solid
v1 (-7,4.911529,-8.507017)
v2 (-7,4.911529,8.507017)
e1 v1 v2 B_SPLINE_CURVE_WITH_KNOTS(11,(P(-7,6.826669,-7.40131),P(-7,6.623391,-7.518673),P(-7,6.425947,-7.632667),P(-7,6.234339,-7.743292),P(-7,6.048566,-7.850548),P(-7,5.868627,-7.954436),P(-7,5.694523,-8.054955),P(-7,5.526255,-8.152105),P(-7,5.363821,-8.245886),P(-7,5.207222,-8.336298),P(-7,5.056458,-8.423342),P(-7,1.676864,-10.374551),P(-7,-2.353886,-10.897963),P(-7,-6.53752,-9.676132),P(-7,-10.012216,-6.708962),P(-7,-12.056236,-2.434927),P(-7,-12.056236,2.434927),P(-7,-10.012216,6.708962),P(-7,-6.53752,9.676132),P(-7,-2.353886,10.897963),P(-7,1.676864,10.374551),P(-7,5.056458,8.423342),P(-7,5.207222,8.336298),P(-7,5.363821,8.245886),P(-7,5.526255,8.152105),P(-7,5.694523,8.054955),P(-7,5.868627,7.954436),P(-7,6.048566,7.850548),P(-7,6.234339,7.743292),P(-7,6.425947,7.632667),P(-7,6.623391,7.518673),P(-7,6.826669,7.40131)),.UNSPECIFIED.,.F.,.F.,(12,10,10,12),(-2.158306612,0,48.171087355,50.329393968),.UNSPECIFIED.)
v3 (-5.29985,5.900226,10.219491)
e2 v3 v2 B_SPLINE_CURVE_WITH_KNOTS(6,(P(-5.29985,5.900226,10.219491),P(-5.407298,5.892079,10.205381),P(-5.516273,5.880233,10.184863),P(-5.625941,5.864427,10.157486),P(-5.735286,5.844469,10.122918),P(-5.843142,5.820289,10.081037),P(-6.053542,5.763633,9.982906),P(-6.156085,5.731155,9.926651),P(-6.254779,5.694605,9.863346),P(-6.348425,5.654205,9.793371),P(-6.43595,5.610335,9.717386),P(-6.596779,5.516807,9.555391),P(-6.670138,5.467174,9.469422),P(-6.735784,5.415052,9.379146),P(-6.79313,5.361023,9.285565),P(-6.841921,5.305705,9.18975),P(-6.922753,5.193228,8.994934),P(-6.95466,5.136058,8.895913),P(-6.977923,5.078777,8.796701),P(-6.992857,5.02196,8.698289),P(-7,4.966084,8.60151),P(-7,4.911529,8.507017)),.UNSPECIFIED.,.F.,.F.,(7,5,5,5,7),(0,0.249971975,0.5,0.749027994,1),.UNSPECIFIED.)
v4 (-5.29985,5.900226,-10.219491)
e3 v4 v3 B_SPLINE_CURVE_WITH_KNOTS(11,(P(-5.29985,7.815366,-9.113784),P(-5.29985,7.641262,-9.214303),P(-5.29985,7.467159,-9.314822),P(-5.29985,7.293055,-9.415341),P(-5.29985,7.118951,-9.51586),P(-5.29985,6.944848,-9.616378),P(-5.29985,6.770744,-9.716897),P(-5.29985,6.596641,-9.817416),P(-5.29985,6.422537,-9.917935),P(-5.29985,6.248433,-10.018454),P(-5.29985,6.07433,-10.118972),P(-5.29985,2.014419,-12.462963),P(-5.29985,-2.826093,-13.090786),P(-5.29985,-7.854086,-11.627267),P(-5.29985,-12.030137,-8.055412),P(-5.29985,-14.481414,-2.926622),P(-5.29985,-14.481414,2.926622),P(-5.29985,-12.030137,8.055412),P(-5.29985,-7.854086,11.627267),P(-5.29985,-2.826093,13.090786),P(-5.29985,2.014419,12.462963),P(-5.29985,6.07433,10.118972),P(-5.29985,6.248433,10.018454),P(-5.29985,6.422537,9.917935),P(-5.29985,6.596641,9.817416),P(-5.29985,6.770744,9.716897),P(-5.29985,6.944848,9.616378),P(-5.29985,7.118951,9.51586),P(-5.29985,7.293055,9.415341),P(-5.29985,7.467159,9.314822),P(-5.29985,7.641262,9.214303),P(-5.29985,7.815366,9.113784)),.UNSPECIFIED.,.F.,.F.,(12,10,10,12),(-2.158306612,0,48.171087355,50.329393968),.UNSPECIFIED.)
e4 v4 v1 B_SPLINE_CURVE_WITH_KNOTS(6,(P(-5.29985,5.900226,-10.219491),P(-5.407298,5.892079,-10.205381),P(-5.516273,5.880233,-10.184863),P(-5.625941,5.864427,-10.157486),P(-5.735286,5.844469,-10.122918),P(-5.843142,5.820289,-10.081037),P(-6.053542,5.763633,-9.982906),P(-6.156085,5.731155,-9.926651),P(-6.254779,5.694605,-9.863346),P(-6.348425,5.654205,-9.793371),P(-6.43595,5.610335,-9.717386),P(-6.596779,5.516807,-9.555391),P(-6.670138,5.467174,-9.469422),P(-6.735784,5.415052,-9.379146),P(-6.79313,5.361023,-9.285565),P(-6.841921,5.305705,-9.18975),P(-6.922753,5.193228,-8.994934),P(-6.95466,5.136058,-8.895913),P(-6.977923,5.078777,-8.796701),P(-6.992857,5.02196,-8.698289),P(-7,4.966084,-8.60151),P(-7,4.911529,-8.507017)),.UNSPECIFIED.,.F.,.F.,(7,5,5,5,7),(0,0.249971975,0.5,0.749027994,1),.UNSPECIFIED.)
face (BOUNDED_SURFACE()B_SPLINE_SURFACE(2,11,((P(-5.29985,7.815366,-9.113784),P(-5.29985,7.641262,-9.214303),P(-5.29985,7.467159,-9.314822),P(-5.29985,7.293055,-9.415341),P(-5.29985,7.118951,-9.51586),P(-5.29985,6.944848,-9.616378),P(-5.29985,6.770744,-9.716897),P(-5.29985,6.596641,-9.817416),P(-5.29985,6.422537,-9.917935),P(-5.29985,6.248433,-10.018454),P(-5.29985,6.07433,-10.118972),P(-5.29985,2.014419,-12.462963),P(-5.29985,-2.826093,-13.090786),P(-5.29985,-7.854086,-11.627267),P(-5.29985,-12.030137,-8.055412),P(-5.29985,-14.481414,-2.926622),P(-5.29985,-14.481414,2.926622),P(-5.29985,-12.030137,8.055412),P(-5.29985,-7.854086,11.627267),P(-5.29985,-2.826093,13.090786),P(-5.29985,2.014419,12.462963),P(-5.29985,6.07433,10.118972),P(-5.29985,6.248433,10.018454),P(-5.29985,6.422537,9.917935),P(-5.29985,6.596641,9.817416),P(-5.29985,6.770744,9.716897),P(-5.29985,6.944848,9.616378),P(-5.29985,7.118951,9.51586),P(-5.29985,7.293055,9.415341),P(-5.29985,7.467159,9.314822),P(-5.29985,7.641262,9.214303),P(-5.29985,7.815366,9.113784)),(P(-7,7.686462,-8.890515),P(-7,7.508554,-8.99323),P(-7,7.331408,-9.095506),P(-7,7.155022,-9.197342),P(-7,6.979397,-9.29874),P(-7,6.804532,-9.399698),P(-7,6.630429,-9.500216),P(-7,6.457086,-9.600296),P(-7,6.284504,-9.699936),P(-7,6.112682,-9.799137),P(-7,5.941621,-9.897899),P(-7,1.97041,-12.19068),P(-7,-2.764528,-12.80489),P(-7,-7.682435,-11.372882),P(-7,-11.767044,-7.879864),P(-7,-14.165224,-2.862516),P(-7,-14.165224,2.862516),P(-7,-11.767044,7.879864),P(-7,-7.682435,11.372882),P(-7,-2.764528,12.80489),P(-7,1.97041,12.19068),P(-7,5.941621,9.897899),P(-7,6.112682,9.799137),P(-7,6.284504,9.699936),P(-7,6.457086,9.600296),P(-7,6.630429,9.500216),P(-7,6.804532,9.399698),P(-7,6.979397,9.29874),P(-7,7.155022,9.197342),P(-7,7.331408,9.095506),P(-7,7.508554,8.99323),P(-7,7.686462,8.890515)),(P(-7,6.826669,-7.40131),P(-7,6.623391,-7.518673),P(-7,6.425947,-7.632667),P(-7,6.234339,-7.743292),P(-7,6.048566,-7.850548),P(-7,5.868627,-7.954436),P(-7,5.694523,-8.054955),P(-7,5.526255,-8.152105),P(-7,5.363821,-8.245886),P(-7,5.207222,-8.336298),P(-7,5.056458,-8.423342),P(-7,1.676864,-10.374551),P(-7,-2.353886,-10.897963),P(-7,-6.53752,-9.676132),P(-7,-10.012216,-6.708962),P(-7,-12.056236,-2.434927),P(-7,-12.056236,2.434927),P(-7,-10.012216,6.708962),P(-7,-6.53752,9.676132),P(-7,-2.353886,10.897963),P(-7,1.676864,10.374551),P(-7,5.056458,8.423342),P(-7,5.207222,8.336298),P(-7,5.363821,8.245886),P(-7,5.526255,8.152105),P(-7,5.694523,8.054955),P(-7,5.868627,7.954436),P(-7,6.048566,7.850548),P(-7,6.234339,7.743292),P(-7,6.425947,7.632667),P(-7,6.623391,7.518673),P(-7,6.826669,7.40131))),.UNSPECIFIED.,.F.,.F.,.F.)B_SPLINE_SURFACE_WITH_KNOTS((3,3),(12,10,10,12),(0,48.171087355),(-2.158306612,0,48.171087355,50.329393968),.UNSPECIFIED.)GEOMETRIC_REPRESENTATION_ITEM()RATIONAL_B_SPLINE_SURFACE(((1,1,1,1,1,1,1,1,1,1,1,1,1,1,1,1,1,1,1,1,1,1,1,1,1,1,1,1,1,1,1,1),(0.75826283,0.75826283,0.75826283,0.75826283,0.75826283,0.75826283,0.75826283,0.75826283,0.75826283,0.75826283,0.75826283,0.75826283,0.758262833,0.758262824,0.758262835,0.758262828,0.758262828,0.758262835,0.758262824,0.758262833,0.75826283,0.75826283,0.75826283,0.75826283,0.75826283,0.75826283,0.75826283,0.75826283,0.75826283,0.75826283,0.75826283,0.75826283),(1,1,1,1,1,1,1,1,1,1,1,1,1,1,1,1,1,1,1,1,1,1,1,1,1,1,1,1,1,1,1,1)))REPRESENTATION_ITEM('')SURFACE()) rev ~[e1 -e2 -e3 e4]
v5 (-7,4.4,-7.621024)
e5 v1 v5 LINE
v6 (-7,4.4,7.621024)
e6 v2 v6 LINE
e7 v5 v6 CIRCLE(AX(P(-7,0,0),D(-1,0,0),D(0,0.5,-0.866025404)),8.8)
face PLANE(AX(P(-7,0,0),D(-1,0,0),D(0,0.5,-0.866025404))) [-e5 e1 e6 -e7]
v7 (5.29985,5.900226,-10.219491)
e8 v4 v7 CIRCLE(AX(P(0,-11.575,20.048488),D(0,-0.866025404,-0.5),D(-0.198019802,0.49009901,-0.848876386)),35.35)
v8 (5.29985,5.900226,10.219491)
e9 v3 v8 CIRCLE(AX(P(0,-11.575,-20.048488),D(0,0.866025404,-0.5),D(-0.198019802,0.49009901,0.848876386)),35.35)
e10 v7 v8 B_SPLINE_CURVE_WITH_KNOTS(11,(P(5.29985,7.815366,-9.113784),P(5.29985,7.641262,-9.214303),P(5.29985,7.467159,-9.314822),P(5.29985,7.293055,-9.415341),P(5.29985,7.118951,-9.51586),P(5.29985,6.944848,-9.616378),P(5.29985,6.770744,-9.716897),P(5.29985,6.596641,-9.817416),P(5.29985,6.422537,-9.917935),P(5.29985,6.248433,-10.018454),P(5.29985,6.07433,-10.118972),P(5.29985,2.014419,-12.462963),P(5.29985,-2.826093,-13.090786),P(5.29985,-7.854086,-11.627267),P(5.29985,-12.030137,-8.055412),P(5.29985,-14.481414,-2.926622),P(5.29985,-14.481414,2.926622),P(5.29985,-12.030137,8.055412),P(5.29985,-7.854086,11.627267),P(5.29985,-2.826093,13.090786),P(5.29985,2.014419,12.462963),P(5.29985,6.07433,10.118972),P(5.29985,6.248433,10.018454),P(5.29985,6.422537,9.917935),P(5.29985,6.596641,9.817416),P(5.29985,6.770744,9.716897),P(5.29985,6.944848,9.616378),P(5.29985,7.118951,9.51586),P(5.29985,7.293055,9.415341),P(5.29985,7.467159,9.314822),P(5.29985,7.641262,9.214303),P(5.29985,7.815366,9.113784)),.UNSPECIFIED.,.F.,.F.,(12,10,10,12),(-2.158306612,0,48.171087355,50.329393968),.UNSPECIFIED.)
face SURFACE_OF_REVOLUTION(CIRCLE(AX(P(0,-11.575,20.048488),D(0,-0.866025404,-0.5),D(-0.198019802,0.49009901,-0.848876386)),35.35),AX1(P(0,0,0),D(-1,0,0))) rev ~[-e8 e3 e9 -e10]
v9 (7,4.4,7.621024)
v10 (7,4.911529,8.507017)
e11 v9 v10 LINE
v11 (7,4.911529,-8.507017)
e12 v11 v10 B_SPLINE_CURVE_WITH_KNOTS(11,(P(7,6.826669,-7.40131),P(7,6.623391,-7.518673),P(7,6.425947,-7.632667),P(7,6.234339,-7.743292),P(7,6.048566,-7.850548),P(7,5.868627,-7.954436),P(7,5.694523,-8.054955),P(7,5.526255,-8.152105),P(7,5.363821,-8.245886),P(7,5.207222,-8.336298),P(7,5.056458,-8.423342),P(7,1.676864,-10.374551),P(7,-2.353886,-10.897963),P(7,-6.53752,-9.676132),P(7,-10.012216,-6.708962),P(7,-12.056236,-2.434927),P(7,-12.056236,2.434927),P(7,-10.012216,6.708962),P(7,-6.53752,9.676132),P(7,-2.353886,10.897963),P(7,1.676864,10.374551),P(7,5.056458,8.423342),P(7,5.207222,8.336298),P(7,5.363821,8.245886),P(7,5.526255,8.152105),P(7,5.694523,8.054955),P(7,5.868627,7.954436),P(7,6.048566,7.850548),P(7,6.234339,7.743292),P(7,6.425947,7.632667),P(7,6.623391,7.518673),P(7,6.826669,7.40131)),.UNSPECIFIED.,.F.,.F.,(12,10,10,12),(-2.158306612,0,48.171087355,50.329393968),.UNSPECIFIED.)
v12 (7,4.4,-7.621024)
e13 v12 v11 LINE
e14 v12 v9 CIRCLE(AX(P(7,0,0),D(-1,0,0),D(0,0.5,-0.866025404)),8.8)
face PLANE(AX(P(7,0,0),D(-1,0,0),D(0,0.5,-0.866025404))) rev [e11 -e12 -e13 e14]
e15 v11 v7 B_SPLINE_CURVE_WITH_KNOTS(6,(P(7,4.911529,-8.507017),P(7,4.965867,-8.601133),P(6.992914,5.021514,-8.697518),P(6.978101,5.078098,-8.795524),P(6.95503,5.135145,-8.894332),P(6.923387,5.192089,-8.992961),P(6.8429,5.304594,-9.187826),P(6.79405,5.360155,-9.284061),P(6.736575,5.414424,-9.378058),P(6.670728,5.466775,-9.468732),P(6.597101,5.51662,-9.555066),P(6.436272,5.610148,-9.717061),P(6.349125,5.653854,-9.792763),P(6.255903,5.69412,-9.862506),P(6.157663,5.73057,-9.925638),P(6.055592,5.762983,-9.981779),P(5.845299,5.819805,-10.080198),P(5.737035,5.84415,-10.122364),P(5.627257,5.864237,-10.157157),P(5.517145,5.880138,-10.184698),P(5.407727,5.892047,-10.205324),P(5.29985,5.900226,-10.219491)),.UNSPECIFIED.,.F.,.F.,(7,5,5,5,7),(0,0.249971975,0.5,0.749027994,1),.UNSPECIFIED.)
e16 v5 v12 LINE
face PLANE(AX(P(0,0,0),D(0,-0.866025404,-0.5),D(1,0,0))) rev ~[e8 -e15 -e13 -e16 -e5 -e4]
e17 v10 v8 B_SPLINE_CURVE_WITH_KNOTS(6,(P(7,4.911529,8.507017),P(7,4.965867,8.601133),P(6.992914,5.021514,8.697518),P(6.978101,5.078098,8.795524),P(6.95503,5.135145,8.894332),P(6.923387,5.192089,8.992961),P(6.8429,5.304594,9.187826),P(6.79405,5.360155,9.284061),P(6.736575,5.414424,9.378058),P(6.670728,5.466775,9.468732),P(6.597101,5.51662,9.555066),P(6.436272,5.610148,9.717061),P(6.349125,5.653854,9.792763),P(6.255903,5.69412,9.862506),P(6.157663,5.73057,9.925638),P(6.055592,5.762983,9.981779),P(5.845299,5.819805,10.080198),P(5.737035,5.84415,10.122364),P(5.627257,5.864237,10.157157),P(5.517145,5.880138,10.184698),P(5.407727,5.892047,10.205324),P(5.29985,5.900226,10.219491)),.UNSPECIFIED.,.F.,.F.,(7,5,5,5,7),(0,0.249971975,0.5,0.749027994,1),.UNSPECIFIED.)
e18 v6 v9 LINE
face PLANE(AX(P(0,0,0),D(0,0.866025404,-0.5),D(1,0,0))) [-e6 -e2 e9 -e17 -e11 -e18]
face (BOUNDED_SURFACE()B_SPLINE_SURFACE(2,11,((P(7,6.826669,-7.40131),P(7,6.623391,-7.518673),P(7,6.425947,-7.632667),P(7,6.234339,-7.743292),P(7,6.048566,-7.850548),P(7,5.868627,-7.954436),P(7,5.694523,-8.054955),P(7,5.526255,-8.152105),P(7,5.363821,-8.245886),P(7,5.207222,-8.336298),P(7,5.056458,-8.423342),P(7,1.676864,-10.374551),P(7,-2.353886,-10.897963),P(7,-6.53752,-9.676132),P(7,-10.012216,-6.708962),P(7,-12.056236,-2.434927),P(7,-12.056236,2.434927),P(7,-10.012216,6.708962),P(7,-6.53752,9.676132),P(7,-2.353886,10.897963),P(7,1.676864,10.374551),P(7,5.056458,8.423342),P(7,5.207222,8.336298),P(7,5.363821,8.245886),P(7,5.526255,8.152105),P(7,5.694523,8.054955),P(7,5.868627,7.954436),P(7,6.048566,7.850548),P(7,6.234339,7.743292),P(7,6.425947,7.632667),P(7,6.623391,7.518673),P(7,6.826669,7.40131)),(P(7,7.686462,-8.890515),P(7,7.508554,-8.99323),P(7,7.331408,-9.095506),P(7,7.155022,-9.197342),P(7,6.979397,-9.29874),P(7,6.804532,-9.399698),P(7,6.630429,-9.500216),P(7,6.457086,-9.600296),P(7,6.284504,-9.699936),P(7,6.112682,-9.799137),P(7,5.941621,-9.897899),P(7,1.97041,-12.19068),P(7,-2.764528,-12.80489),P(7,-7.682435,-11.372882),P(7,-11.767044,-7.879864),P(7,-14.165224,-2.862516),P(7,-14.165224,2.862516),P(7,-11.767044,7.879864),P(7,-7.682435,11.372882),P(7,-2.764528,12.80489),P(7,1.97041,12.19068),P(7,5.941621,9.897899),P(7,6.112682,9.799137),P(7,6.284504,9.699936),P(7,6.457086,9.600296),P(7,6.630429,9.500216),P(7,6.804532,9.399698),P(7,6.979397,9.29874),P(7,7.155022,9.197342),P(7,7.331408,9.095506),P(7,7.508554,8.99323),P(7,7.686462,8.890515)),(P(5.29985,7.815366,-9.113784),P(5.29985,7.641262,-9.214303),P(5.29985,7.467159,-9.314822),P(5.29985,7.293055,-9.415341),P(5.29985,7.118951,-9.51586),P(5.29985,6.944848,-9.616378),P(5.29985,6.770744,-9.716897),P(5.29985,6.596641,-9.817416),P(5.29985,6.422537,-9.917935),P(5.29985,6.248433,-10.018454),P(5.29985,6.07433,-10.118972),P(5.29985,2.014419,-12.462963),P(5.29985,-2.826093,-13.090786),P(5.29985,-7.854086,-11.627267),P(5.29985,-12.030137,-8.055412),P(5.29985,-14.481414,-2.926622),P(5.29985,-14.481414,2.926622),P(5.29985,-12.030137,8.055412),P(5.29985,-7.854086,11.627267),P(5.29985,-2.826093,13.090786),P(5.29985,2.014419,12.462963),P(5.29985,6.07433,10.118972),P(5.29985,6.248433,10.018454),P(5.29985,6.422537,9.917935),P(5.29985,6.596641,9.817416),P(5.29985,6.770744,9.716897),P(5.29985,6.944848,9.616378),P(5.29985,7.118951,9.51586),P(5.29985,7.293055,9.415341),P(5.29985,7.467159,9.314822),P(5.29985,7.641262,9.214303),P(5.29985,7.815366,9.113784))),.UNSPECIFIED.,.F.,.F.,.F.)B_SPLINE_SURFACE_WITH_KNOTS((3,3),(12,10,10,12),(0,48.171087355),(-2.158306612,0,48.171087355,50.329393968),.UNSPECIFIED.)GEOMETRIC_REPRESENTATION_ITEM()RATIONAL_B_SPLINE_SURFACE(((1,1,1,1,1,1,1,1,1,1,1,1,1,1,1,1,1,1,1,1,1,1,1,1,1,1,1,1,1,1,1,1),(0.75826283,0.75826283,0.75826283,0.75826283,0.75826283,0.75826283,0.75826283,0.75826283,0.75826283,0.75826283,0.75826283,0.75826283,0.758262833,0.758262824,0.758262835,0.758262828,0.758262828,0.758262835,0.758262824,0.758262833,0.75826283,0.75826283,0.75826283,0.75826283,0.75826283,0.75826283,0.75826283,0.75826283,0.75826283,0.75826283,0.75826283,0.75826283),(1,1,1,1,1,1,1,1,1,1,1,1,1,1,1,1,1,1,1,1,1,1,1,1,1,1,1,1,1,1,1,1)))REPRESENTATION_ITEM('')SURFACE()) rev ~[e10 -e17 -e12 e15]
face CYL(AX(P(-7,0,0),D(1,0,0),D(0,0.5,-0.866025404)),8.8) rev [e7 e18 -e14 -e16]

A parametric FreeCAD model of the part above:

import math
import FreeCAD as App
import Part
import Sketcher
from FreeCAD import Vector


def edges_at(feature, points):
    """Names of the edges that pass closest to the given points."""
    edges = feature.Shape.Edges
    near = lambda p: min(range(len(edges)), key=lambda i: edges[i].distToShape(Part.Vertex(*p))[0])
    return sorted({f"Edge{near(p) + 1}" for p in points})

doc = App.newDocument("Part")
body = doc.addObject("PartDesign::Body", "Body")

sketch1 = body.newObject("Sketcher::SketchObject", "Sketch")
sketch1.AttachmentSupport = (doc.getObject("XY_Plane"), [""])
sketch1.MapMode = "FlatFace"
sketch1.addGeometry([
    Part.LineSegment(Vector(7, -8.8, 0), Vector(-7, -8.8, 0)),
    Part.LineSegment(Vector(-7, -8.8, 0), Vector(-7, -11.5, 0)),
    Part.ArcOfCircle(Part.Circle(Vector(0, 23.15, 0), Vector(0, 0, 1), 35.35), math.radians(-101.421186), math.radians(-78.578814)),
    Part.LineSegment(Vector(7, -11.5, 0), Vector(7, -8.8, 0)),
], False)
sketch1.addConstraint([
    Sketcher.Constraint("Coincident", 0, 2, 1, 1),
    Sketcher.Constraint("Coincident", 1, 2, 2, 1),
    Sketcher.Constraint("Coincident", 2, 2, 3, 1),
    Sketcher.Constraint("Coincident", 3, 2, 0, 1),
    Sketcher.Constraint("Horizontal", 0),
    Sketcher.Constraint("Vertical", 1),
    Sketcher.Constraint("Vertical", 3),
    Sketcher.Constraint("Symmetric", 1, 2, 2, 2, -2),
    Sketcher.Constraint("DistanceX", 0, 2, 0, 1, 14.0),
    Sketcher.Constraint("DistanceY", 0, 2, -1, 1, 8.8),
    Sketcher.Constraint("DistanceY", 1, 2, -1, 1, 11.5),
    Sketcher.Constraint("Radius", 2, 35.35),
])
revolution = body.newObject("PartDesign::Revolution", "Revolution")
revolution.Profile = sketch1
revolution.ReferenceAxis = (sketch1, ["H_Axis"])
revolution.Angle = 240
revolution.Midplane = True
doc.recompute()

fillet = body.newObject("PartDesign::Fillet", "Fillet")
fillet.Base = (revolution, edges_at(revolution, [(7, -11.5, 0), (-7, -11.5, 0)]))
fillet.Radius = 2

doc.recompute()
